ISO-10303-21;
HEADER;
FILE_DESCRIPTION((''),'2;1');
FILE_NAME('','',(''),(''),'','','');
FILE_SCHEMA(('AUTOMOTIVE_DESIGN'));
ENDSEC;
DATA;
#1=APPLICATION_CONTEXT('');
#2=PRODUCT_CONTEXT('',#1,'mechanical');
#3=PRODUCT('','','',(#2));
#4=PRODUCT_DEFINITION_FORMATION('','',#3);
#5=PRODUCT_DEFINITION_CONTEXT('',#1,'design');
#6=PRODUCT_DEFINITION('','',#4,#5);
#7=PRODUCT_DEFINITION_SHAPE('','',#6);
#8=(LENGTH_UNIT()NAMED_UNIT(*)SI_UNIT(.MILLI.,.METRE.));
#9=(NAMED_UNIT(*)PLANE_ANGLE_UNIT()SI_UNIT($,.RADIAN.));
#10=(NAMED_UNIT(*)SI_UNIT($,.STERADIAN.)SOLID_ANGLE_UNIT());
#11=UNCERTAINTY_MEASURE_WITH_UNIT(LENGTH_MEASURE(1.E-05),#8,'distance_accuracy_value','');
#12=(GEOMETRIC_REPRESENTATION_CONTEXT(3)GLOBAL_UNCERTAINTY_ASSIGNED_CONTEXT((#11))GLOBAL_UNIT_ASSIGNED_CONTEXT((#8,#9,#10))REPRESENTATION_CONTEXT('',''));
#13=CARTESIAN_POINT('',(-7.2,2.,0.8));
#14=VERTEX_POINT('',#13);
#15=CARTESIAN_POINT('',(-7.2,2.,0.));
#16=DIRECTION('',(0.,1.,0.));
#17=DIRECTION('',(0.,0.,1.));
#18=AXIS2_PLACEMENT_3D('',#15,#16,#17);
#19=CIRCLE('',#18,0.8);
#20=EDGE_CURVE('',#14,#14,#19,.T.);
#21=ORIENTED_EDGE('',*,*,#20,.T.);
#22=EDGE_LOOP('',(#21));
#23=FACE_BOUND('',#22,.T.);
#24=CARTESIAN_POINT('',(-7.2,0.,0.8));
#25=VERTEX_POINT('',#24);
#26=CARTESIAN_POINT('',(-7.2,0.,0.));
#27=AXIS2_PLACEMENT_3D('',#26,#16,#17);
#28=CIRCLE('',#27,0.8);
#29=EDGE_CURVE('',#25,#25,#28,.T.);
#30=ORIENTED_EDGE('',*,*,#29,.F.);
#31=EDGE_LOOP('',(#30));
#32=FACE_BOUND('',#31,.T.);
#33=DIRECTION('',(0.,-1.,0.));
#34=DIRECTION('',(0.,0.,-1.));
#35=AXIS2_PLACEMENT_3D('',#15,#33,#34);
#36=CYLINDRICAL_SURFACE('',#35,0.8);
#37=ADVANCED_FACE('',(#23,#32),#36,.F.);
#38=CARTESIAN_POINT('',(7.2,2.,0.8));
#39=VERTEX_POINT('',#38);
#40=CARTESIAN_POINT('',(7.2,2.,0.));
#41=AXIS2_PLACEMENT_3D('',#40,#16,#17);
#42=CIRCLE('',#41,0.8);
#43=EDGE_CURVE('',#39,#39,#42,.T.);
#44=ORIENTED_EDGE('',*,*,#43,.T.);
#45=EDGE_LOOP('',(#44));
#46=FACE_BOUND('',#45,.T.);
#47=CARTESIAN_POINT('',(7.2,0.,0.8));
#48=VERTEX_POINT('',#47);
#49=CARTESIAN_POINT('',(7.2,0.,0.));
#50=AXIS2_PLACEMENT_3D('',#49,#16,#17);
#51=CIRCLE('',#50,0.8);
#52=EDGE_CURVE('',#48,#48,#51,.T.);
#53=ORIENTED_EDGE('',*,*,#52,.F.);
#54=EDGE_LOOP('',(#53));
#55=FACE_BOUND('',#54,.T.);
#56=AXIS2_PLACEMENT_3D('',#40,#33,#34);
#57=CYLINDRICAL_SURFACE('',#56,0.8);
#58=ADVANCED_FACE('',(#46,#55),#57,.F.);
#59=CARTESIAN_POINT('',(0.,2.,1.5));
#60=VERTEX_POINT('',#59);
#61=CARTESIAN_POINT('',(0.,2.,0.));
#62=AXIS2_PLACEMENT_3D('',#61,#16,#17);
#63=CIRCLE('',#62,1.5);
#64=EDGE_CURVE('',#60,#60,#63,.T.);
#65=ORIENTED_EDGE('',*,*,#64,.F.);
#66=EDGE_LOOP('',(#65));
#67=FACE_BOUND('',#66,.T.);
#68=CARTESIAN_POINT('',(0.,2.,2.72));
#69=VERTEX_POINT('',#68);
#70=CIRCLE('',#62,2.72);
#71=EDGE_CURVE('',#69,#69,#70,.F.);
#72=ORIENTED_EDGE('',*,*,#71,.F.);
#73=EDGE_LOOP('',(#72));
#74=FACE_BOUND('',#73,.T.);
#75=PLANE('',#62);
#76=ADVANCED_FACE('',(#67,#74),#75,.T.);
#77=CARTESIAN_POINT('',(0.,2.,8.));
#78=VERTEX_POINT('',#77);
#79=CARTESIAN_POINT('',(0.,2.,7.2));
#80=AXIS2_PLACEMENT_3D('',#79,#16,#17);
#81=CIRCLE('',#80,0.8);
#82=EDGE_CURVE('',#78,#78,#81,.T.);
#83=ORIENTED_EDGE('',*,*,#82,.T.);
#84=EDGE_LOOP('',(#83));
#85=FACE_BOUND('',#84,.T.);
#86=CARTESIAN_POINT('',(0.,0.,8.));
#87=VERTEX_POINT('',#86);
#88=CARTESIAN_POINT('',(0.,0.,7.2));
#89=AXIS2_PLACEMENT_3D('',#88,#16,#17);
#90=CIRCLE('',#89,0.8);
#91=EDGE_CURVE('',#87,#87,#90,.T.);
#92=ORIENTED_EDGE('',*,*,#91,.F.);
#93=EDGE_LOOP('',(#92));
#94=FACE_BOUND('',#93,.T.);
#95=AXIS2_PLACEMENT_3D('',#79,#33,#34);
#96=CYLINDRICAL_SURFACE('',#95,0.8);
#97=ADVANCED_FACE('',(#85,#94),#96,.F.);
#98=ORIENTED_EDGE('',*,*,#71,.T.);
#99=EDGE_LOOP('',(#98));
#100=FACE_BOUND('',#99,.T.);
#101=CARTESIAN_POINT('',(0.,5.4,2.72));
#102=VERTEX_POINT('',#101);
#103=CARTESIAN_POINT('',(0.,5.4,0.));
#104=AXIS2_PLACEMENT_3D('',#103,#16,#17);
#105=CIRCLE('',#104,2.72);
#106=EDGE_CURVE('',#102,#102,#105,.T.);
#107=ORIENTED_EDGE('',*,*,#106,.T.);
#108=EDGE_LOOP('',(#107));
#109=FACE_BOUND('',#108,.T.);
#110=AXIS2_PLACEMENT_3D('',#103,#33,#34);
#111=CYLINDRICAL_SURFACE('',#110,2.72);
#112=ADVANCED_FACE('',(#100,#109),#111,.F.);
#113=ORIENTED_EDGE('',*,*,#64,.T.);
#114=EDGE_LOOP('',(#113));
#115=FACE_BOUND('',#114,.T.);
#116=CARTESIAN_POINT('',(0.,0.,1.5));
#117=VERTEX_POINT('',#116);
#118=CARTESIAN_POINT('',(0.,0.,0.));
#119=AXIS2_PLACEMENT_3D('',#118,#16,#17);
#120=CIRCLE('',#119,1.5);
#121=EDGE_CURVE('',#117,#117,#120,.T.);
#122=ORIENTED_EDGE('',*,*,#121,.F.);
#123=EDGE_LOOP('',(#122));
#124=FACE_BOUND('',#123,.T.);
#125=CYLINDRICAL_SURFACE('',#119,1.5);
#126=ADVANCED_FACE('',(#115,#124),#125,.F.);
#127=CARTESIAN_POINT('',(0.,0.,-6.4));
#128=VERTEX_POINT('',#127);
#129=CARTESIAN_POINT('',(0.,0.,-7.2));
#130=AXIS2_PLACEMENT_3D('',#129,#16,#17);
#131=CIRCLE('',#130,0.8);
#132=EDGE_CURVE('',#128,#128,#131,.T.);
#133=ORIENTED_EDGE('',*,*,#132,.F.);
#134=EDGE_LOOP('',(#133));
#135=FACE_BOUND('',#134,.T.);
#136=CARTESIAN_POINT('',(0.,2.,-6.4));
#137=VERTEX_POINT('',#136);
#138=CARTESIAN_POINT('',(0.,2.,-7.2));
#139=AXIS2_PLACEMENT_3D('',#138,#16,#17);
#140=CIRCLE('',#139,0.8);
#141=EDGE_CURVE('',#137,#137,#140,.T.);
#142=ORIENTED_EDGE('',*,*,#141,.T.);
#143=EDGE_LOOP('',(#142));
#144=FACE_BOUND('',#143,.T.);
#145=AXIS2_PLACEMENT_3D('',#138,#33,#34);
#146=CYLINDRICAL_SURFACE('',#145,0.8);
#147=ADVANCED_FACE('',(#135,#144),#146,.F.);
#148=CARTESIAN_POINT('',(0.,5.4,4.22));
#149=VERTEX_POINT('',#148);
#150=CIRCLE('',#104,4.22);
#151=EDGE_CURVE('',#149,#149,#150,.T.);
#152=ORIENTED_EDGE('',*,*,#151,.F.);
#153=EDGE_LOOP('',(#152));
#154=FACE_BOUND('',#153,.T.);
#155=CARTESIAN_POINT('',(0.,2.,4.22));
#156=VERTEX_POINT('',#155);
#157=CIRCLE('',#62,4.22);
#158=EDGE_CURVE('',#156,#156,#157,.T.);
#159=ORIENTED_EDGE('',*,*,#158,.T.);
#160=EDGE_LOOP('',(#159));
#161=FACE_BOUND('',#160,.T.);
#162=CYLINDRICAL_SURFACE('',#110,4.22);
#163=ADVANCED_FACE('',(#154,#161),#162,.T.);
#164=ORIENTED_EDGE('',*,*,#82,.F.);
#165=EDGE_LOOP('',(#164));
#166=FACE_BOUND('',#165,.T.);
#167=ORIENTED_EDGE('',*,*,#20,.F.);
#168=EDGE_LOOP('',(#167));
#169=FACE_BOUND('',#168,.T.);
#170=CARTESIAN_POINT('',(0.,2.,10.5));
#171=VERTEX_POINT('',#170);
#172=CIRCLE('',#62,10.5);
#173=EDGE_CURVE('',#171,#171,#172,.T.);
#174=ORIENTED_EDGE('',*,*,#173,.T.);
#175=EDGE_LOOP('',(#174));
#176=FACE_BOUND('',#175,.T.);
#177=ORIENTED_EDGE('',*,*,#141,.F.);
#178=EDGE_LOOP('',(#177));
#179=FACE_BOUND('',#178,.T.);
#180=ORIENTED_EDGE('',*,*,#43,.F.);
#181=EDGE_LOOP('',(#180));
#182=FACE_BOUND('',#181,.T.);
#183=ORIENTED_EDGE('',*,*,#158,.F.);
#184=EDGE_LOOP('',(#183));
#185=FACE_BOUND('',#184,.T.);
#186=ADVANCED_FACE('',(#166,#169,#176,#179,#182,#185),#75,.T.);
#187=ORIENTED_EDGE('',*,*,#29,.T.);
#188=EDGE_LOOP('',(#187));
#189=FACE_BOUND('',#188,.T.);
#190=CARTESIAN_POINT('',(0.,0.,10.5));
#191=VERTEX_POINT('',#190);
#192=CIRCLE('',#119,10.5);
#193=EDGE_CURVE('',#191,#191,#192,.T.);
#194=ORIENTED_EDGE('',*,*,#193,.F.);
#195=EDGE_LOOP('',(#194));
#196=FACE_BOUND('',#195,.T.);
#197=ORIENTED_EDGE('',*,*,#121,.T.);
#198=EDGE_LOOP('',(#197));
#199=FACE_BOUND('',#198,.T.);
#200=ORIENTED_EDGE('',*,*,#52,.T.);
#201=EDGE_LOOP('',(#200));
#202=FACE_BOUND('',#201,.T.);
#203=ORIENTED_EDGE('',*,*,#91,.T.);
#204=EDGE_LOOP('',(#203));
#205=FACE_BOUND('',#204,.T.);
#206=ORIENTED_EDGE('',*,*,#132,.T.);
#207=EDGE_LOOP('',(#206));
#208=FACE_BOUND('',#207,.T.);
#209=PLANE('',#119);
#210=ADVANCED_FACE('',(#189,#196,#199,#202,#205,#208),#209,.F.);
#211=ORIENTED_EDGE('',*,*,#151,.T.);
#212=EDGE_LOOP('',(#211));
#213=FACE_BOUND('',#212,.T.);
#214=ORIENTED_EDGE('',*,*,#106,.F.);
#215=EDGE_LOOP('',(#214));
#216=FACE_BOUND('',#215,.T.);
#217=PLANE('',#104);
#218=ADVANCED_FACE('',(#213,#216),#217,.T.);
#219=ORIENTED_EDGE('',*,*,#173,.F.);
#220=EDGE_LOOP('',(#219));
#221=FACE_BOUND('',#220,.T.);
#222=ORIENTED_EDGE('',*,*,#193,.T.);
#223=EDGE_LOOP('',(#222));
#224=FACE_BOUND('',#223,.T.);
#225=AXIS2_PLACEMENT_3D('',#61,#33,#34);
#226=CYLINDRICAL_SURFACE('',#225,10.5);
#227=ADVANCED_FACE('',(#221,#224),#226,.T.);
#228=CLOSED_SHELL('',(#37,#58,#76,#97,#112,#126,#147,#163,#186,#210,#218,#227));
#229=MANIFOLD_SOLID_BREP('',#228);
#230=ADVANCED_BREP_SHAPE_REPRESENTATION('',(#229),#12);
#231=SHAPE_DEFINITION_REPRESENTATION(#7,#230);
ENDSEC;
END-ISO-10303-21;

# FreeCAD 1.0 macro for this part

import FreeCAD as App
import Part
import Sketcher

doc = App.newDocument("Part")
body = doc.addObject("PartDesign::Body", "Body")

# Sketch on XZ plane
sketch1 = body.newObject("Sketcher::SketchObject", "Sketch")
sketch1.AttachmentSupport = (doc.getObject("XZ_Plane"), [""])
sketch1.MapMode = "FlatFace"
sketch1.addGeometry([
    Part.Circle(App.Vector(0, 0, 0), App.Vector(0, 0, 1), 10.5),  # 0
    Part.Circle(App.Vector(0, -7.2, 0), App.Vector(0, 0, 1), 0.8),  # 1
    Part.Circle(App.Vector(-7.2, 0, 0), App.Vector(0, 0, 1), 0.8),  # 2
    Part.Circle(App.Vector(7.2, 0, 0), App.Vector(0, 0, 1), 0.8),  # 3
    Part.Circle(App.Vector(0, 7.2, 0), App.Vector(0, 0, 1), 0.8),  # 4
], False)
sketch1.addConstraint([
    Sketcher.Constraint("Coincident", 0, 3, -1, 1),
    Sketcher.Constraint("Equal", 1, 2),
    Sketcher.Constraint("Equal", 2, 3),
    Sketcher.Constraint("Equal", 3, 4),
    Sketcher.Constraint("Symmetric", 2, 3, 3, 3, -1, 1),
    Sketcher.Constraint("Symmetric", 1, 3, 4, 3, -1, 1),
    Sketcher.Constraint("PointOnObject", 1, 3, -2),
    Sketcher.Constraint("PointOnObject", 2, 3, -1),
    Sketcher.Constraint("Diameter", 0, 21.0),
    Sketcher.Constraint("Diameter", 1, 1.6),
    Sketcher.Constraint("DistanceY", 1, 3, -1, 1, 7.2),
    Sketcher.Constraint("DistanceX", 2, 3, -1, 1, 7.2),
])
pad1 = body.newObject("PartDesign::Pad", "Pad")
pad1.Profile = sketch1
pad1.Length = 2
pad1.Reversed = True

# Sketch on XZ plane
sketch2 = body.newObject("Sketcher::SketchObject", "Sketch001")
sketch2.AttachmentSupport = (doc.getObject("XZ_Plane"), [""])
sketch2.MapMode = "FlatFace"
sketch2.AttachmentOffset = App.Placement(App.Vector(0, 0, -2), App.Rotation())
sketch2.addGeometry(Part.Circle(App.Vector(0, 0, 0), App.Vector(0, 0, 1), 1.5), False)
sketch2.addConstraint([
    Sketcher.Constraint("Coincident", 0, 3, -1, 1),
    Sketcher.Constraint("Diameter", 0, 3.0),
])
pocket1 = body.newObject("PartDesign::Pocket", "Pocket")
pocket1.Profile = sketch2
pocket1.Length = 2
pocket1.Reversed = True

# Sketch on XZ plane
sketch3 = body.newObject("Sketcher::SketchObject", "Sketch002")
sketch3.AttachmentSupport = (doc.getObject("XZ_Plane"), [""])
sketch3.MapMode = "FlatFace"
sketch3.AttachmentOffset = App.Placement(App.Vector(0, 0, -2), App.Rotation())
sketch3.addGeometry([
    Part.Circle(App.Vector(0, 0, 0), App.Vector(0, 0, 1), 4.2),
    Part.Circle(App.Vector(0, 0, 0), App.Vector(0, 0, 1), 2.7),
], False)
sketch3.addConstraint([
    Sketcher.Constraint("Coincident", 0, 3, -1, 1),
    Sketcher.Constraint("Coincident", 1, 3, -1, 1),
    Sketcher.Constraint("Diameter", 0, 8.44),
    Sketcher.Constraint("Diameter", 1, 5.44),
])
pad2 = body.newObject("PartDesign::Pad", "Pad001")
pad2.Profile = sketch3
pad2.Length = 3.4
pad2.Reversed = True

doc.recompute()
